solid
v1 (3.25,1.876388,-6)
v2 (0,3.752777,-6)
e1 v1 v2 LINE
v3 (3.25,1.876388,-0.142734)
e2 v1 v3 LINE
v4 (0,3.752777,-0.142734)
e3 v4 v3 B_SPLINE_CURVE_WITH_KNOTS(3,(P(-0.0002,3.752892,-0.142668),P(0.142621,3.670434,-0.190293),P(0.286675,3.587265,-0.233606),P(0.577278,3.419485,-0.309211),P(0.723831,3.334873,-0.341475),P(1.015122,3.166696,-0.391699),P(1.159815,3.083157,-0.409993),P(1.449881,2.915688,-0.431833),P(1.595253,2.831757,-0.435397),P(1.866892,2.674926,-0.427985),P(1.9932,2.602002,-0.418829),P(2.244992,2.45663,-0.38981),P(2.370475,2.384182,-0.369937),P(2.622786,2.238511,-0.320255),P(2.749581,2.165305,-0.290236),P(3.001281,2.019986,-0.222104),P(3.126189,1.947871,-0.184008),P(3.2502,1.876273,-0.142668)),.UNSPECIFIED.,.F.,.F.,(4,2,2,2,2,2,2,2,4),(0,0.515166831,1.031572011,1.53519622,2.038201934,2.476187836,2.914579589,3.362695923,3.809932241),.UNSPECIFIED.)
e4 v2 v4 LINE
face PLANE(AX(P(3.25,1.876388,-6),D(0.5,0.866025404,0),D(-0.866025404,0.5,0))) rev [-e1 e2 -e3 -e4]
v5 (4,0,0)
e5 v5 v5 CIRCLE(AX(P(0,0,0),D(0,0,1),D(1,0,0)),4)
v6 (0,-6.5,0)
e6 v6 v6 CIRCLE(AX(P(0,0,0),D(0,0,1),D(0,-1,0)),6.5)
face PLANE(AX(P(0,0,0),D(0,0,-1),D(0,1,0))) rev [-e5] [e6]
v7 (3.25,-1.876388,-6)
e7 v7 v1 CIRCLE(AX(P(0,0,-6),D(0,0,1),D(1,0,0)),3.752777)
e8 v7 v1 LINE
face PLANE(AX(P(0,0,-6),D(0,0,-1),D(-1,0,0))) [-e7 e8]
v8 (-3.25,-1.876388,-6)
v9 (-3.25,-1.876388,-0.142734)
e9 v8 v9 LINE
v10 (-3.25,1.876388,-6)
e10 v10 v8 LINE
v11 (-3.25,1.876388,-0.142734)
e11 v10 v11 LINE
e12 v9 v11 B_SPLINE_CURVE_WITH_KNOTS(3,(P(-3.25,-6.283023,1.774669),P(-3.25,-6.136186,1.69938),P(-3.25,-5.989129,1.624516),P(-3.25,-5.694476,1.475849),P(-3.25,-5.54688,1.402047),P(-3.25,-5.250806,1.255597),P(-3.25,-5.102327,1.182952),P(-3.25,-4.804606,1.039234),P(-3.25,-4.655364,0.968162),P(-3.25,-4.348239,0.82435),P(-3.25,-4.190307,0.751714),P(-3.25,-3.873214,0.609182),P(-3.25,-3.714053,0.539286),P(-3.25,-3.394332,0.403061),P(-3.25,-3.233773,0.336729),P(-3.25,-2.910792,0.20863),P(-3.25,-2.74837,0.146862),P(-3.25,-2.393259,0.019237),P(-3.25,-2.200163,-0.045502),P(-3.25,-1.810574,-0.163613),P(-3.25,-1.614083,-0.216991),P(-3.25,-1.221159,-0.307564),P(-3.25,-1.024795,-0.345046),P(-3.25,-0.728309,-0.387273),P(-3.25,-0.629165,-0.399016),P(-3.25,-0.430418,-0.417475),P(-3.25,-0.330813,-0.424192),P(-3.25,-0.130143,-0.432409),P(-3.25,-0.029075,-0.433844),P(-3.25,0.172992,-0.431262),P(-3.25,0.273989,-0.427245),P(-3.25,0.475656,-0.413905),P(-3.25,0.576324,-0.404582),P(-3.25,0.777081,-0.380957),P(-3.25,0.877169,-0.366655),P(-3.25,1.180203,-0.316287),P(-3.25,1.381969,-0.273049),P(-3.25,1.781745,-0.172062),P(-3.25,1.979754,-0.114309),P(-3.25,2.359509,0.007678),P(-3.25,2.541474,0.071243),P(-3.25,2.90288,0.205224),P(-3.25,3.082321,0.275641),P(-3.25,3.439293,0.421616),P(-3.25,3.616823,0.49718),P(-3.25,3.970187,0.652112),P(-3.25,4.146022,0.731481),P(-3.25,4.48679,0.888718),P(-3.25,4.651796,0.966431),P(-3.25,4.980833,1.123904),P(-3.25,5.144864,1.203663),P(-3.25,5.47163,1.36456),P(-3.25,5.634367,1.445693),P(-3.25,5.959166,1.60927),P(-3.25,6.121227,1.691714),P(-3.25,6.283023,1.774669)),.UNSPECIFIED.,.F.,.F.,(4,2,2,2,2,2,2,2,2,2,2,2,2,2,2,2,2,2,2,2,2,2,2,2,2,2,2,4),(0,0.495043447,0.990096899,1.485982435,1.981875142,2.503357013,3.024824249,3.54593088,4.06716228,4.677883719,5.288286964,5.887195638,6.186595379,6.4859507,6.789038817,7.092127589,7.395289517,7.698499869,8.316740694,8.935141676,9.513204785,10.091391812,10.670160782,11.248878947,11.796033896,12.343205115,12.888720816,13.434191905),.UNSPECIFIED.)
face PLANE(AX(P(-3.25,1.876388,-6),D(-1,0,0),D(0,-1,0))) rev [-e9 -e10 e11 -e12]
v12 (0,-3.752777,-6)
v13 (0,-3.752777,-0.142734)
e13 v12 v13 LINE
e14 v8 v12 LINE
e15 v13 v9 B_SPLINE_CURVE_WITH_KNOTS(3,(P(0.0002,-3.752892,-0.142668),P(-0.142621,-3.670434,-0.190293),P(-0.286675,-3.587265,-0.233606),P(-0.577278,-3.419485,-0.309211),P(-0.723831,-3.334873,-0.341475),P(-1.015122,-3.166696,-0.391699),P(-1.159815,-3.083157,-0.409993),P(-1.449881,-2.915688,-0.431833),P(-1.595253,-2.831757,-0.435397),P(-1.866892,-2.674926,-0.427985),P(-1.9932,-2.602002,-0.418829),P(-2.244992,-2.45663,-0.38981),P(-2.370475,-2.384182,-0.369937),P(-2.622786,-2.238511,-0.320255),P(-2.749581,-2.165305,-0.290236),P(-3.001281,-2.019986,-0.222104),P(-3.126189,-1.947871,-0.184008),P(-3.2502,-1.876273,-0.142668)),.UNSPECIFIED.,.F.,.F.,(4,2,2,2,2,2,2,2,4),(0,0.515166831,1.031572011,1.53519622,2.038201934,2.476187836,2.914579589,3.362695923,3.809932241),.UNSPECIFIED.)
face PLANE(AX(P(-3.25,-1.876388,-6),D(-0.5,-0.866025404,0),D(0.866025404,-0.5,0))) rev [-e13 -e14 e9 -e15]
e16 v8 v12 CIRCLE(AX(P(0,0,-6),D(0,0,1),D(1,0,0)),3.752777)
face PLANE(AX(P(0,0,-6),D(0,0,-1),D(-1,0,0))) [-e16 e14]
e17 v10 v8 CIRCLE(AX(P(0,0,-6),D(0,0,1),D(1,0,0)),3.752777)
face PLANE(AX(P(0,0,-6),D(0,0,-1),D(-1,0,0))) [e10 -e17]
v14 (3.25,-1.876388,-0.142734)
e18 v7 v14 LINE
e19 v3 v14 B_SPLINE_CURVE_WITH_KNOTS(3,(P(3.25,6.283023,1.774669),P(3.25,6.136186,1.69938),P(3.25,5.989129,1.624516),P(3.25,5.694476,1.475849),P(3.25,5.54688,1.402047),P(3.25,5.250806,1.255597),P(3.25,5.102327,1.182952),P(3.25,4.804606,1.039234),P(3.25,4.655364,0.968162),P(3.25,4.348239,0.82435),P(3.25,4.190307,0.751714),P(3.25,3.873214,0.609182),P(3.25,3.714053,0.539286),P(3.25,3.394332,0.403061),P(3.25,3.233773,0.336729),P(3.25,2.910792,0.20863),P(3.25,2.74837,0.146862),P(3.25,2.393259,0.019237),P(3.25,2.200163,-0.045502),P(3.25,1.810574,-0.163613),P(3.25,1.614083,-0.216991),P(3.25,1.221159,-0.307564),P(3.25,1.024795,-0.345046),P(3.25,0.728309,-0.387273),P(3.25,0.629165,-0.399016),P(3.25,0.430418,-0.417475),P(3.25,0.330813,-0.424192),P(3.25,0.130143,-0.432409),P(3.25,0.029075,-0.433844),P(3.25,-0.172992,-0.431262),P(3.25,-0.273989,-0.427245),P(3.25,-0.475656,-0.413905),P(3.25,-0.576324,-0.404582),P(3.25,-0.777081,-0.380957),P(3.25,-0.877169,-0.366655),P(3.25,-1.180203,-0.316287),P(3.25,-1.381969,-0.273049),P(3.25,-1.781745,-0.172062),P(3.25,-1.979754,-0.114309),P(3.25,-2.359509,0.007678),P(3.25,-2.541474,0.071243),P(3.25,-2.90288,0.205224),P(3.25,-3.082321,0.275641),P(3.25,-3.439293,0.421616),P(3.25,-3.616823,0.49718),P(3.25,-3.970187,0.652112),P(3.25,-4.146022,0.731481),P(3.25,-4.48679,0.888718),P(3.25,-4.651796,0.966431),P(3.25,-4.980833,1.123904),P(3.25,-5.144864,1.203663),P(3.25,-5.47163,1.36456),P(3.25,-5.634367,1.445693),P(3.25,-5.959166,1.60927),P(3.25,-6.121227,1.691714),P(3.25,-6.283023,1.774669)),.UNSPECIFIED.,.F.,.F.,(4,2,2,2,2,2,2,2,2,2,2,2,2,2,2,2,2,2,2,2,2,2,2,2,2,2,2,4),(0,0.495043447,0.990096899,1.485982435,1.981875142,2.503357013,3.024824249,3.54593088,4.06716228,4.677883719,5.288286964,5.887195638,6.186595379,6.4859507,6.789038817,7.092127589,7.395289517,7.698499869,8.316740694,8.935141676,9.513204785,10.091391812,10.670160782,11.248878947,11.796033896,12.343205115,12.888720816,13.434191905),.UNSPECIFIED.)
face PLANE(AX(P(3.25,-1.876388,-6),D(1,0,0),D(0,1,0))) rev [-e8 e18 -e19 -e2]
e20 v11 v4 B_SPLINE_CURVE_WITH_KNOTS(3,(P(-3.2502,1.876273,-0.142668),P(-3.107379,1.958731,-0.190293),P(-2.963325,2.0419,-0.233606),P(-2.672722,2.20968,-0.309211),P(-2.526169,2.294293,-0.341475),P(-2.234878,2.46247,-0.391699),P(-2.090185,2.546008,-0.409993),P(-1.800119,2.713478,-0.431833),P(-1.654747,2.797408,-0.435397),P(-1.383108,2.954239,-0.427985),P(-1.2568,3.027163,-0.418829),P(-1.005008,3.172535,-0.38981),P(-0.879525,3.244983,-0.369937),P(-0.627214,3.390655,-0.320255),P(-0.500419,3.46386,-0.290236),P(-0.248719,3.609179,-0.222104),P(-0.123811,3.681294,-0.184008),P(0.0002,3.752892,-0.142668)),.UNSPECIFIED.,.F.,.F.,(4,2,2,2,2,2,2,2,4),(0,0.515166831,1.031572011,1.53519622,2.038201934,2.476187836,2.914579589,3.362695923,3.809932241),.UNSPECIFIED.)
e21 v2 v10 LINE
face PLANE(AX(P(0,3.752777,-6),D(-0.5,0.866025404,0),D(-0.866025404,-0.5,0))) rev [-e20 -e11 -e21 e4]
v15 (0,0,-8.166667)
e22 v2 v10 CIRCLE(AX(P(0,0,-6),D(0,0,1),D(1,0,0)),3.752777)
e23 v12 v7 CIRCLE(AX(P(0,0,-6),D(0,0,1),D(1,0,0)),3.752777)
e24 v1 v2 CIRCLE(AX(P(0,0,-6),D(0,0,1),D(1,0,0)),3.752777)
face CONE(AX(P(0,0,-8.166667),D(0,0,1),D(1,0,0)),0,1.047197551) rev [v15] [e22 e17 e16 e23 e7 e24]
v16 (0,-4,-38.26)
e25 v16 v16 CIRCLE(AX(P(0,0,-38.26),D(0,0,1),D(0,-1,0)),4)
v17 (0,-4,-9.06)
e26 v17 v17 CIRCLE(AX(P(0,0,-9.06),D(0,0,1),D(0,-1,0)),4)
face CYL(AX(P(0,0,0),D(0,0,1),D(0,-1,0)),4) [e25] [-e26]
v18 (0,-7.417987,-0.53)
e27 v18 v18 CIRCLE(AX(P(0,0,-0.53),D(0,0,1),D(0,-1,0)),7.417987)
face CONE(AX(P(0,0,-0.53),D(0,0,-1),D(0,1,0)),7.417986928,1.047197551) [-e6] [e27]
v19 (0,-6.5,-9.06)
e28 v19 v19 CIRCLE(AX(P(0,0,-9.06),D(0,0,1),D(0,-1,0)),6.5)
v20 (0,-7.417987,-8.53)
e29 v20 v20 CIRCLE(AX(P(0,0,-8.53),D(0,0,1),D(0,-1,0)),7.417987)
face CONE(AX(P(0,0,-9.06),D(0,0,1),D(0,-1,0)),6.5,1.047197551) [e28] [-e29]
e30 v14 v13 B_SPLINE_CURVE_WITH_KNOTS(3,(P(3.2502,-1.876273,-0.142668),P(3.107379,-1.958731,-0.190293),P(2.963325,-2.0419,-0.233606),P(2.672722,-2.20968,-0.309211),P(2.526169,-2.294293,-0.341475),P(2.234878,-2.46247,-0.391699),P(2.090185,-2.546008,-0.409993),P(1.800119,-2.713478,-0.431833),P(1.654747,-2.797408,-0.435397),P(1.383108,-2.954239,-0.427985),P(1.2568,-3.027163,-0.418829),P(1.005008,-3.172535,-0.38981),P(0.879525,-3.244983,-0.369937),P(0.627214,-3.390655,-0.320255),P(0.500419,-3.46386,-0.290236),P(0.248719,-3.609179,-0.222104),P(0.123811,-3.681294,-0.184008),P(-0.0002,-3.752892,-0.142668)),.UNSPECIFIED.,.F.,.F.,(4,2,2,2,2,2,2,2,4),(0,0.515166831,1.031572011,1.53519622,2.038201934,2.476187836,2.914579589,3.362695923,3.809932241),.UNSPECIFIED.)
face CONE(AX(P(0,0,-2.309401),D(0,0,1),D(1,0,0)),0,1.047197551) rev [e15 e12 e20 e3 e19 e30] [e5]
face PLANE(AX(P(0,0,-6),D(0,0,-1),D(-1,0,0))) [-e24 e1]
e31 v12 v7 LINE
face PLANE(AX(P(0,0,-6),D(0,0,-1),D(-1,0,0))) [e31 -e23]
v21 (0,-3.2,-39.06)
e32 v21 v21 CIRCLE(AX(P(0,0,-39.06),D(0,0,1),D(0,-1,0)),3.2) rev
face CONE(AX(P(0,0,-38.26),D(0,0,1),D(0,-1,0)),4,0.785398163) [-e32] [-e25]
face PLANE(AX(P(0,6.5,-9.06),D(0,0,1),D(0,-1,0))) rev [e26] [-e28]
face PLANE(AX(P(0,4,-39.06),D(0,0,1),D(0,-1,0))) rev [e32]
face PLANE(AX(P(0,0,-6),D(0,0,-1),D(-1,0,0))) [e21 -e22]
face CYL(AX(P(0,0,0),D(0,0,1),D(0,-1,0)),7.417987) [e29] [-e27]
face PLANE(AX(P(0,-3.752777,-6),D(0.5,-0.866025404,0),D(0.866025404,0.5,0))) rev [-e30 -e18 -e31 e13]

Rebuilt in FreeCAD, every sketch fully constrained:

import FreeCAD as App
import Part
import Sketcher

V = App.Vector
Q = App.Units.Quantity


def edges_at(feature, points):
    """Names of the edges that pass closest to the given points."""
    edges = feature.Shape.Edges
    near = lambda p: min(range(len(edges)), key=lambda i: edges[i].distToShape(Part.Vertex(*p))[0])
    return sorted({f"Edge{near(p) + 1}" for p in points})


def add_polygon(sketch, points):
    """Adds a closed chain of lines whose ends are joined by coincident constraints."""
    first, n = sketch.GeometryCount, len(points)
    for a, b in zip(points, points[1:] + points[:1]):
        sketch.addGeometry(Part.LineSegment(App.Vector(*a, 0), App.Vector(*b, 0)), False)
    for i in range(n):
        sketch.addConstraint(Sketcher.Constraint("Coincident", first + i, 2, first + (i + 1) % n, 1))

doc = App.newDocument("Part")
body = doc.addObject("PartDesign::Body", "Body")

# Sketch on YZ plane
sketch1 = body.newObject("Sketcher::SketchObject", "Sketch")
sketch1.AttachmentSupport = (doc.getObject("YZ_Plane"), [""])
sketch1.MapMode = "FlatFace"
add_polygon(sketch1, [(6.5, 0), (0, 0), (0, -39.1), (4, -39.1), (4, -9.1), (6.5, -9.1), (7.4, -8.5), (7.4, -0.5)])  # lines 0-7
sketch1.addConstraint(Sketcher.Constraint("Horizontal", 0))
sketch1.addConstraint(Sketcher.Constraint("Vertical", 1))
sketch1.addConstraint(Sketcher.Constraint("Horizontal", 2))
sketch1.addConstraint(Sketcher.Constraint("Vertical", 3))
sketch1.addConstraint(Sketcher.Constraint("Horizontal", 4))
sketch1.addConstraint(Sketcher.Constraint("Vertical", 6))
sketch1.addConstraint(Sketcher.Constraint("Coincident", 0, 2, -1, 1))
sketch1.addConstraint(Sketcher.Constraint("Vertical", 4, 2, 7, 2))
sketch1.addConstraint(Sketcher.Constraint("Equal", 5, 7))
sketch1.addConstraint(Sketcher.Constraint("DistanceX", 2, 1, 2, 2, 4.0))
sketch1.addConstraint(Sketcher.Constraint("DistanceY", 3, 1, 3, 2, 30.0))
sketch1.addConstraint(Sketcher.Constraint("DistanceY", 6, 1, 6, 2, 8.0))
sketch1.addConstraint(Sketcher.Constraint("Angle", 5, Q("30 deg")))
sketch1.addConstraint(Sketcher.Constraint("DistanceX", 0, 2, 0, 1, 6.5))
sketch1.addConstraint(Sketcher.Constraint("DistanceY", 1, 2, 1, 1, 39.06))
revolution = body.newObject("PartDesign::Revolution", "Revolution")
revolution.Profile = sketch1
revolution.ReferenceAxis = (sketch1, ["V_Axis"])
revolution.Angle = 360
doc.recompute()

chamfer = body.newObject("PartDesign::Chamfer", "Chamfer")
chamfer.Base = (revolution, edges_at(revolution, [(0, -4, -39.06)]))
chamfer.Size = 0.8

# Sketch on XY plane
sketch2 = body.newObject("Sketcher::SketchObject", "Sketch001")
sketch2.AttachmentSupport = (doc.getObject("XY_Plane"), [""])
sketch2.MapMode = "FlatFace"
add_polygon(sketch2, [(3.2, -1.9), (3.2, 1.9), (0, 3.8), (-3.2, 1.9), (-3.2, -1.9), (0, -3.8)])  # lines 0-5
sketch2.addConstraint(Sketcher.Constraint("Vertical", 0))
sketch2.addConstraint(Sketcher.Constraint("Vertical", 3))
sketch2.addConstraint(Sketcher.Constraint("Symmetric", 0, 2, 3, 2, -1, 1))
sketch2.addConstraint(Sketcher.Constraint("Symmetric", 1, 2, 4, 2, -1, 1))
sketch2.addConstraint(Sketcher.Constraint("PointOnObject", 1, 2, -2))
sketch2.addConstraint(Sketcher.Constraint("Parallel", 2, 5))
sketch2.addConstraint(Sketcher.Constraint("Horizontal", 0, 2, 2, 2))
sketch2.addConstraint(Sketcher.Constraint("Angle", 1, Q("150 deg")))
sketch2.addConstraint(Sketcher.Constraint("DistanceX", 2, 2, 0, 2, 6.5))
sketch2.addConstraint(Sketcher.Constraint("DistanceY", 0, 1, 0, 2, 3.752777))
pocket1 = body.newObject("PartDesign::Pocket", "Pocket")
pocket1.Profile = sketch2
pocket1.Length = 6

# Sketch on YZ plane
sketch3 = body.newObject("Sketcher::SketchObject", "Sketch002")
sketch3.AttachmentSupport = (doc.getObject("YZ_Plane"), [""])
sketch3.MapMode = "FlatFace"
add_polygon(sketch3, [(4, 0), (0, 0), (0, -2.3)])  # lines 0-2
add_polygon(sketch3, [(0, -6), (0, -8.2), (3.8, -6)])  # lines 3-5
sketch3.addConstraint(Sketcher.Constraint("Horizontal", 0))
sketch3.addConstraint(Sketcher.Constraint("Vertical", 1))
sketch3.addConstraint(Sketcher.Constraint("Vertical", 3))
sketch3.addConstraint(Sketcher.Constraint("Horizontal", 5))
sketch3.addConstraint(Sketcher.Constraint("Coincident", 0, 2, -1, 1))
sketch3.addConstraint(Sketcher.Constraint("PointOnObject", 3, 2, -2))
sketch3.addConstraint(Sketcher.Constraint("Parallel", 2, 4))
sketch3.addConstraint(Sketcher.Constraint("DistanceX", 0, 2, 0, 1, 4.0))
sketch3.addConstraint(Sketcher.Constraint("Angle", 2, Q("30 deg")))
sketch3.addConstraint(Sketcher.Constraint("DistanceY", 4, 2, -1, 1, 6.0))
sketch3.addConstraint(Sketcher.Constraint("DistanceX", 5, 2, 5, 1, 3.752777))
groove = body.newObject("PartDesign::Groove", "Groove")
groove.Profile = sketch3
groove.ReferenceAxis = (sketch3, ["V_Axis"])
groove.Angle = 360

doc.recompute()
